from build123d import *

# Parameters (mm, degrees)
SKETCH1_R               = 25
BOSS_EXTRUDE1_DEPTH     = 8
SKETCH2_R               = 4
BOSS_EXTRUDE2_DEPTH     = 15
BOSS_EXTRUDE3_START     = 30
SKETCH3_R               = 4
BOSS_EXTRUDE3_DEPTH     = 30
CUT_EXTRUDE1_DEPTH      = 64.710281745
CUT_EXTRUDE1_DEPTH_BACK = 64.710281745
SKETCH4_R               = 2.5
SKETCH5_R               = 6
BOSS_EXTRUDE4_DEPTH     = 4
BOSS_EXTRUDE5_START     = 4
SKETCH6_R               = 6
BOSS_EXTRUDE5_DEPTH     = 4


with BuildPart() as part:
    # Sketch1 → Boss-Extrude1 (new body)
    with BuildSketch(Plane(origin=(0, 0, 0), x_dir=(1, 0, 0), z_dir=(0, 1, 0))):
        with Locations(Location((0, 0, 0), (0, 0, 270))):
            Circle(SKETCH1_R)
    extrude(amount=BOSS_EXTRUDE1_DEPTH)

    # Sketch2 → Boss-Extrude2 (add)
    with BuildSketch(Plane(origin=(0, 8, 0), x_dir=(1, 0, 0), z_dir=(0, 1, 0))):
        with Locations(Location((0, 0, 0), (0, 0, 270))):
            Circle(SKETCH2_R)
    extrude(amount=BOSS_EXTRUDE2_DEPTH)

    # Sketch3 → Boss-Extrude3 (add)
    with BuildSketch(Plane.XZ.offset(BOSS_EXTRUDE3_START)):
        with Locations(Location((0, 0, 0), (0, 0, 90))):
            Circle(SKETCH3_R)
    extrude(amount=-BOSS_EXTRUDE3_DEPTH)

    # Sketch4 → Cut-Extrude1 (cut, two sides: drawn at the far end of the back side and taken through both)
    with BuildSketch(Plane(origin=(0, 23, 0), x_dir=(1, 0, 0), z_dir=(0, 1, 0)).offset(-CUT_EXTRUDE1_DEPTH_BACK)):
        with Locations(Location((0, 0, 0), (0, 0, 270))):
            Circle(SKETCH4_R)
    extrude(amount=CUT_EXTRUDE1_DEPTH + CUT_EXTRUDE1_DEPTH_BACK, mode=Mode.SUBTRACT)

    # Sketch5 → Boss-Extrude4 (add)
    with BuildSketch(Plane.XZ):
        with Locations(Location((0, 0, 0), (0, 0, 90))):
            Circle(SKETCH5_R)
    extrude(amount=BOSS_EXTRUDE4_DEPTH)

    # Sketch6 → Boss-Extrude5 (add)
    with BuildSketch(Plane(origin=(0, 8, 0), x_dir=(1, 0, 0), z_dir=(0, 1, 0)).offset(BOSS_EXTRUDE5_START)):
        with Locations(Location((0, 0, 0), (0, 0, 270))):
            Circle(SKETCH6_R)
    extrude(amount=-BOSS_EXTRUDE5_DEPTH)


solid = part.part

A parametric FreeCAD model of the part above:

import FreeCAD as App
import Part
import Sketcher
Q = App.Units.Quantity

doc = App.newDocument("Part")
body = doc.addObject("PartDesign::Body", "Body")

# Sketch on XZ plane
sketch1 = body.newObject("Sketcher::SketchObject", "Sketch")
sketch1.AttachmentSupport = (doc.getObject("XZ_Plane"), [""])
sketch1.MapMode = "FlatFace"
sketch1.addGeometry(Part.Circle(App.Vector(0, 0, 0), App.Vector(0, 0, 1), 25), False)
sketch1.addConstraint([
    Sketcher.Constraint("Coincident", 0, 3, -1, 1),
    Sketcher.Constraint("Diameter", 0, Q("50 mm")),
])
pad1 = body.newObject("PartDesign::Pad", "Pad")
pad1.Profile = sketch1
pad1.Length = 8
pad1.Reversed = True

# Sketch on XZ plane
sketch2 = body.newObject("Sketcher::SketchObject", "Sketch001")
sketch2.AttachmentSupport = (doc.getObject("XZ_Plane"), [""])
sketch2.MapMode = "FlatFace"
sketch2.AttachmentOffset = App.Placement(App.Vector(0, 0, -8), App.Rotation())
sketch2.addGeometry(Part.Circle(App.Vector(0, 0, 0), App.Vector(0, 0, 1), 4), False)
sketch2.addConstraint([
    Sketcher.Constraint("Coincident", 0, 3, -1, 1),
    Sketcher.Constraint("Diameter", 0, Q("8 mm")),
])
pad2 = body.newObject("PartDesign::Pad", "Pad001")
pad2.Profile = sketch2
pad2.Length = 15
pad2.Reversed = True

# Sketch on XZ plane
sketch3 = body.newObject("Sketcher::SketchObject", "Sketch002")
sketch3.AttachmentSupport = (doc.getObject("XZ_Plane"), [""])
sketch3.MapMode = "FlatFace"
sketch3.AttachmentOffset = App.Placement(App.Vector(0, 0, 30), App.Rotation())
sketch3.addGeometry(Part.Circle(App.Vector(0, 0, 0), App.Vector(0, 0, 1), 4), False)
sketch3.addConstraint([
    Sketcher.Constraint("Coincident", 0, 3, -1, 1),
    Sketcher.Constraint("Diameter", 0, Q("8 mm")),
])
pad3 = body.newObject("PartDesign::Pad", "Pad002")
pad3.Profile = sketch3
pad3.Length = 30
pad3.Reversed = True

# Sketch on XZ plane
sketch4 = body.newObject("Sketcher::SketchObject", "Sketch003")
sketch4.AttachmentSupport = (doc.getObject("XZ_Plane"), [""])
sketch4.MapMode = "FlatFace"
sketch4.AttachmentOffset = App.Placement(App.Vector(0, 0, -23), App.Rotation())
sketch4.addGeometry(Part.Circle(App.Vector(0, 0, 0), App.Vector(0, 0, 1), 2.5), False)
sketch4.addConstraint([
    Sketcher.Constraint("Coincident", 0, 3, -1, 1),
    Sketcher.Constraint("Diameter", 0, Q("5 mm")),
])
pocket1 = body.newObject("PartDesign::Pocket", "Pocket")
pocket1.Profile = sketch4
pocket1.Type = "ThroughAll"
pocket1.Midplane = True

# Sketch on XZ plane
sketch5 = body.newObject("Sketcher::SketchObject", "Sketch004")
sketch5.AttachmentSupport = (doc.getObject("XZ_Plane"), [""])
sketch5.MapMode = "FlatFace"
sketch5.addGeometry(Part.Circle(App.Vector(0, 0, 0), App.Vector(0, 0, 1), 6), False)
sketch5.addConstraint([
    Sketcher.Constraint("Coincident", 0, 3, -1, 1),
    Sketcher.Constraint("Diameter", 0, Q("12 mm")),
])
pad4 = body.newObject("PartDesign::Pad", "Pad003")
pad4.Profile = sketch5
pad4.Length = 4

# Sketch on XZ plane
sketch6 = body.newObject("Sketcher::SketchObject", "Sketch005")
sketch6.AttachmentSupport = (doc.getObject("XZ_Plane"), [""])
sketch6.MapMode = "FlatFace"
sketch6.AttachmentOffset = App.Placement(App.Vector(0, 0, -12), App.Rotation())
sketch6.addGeometry(Part.Circle(App.Vector(0, 0, 0), App.Vector(0, 0, 1), 6), False)
sketch6.addConstraint([
    Sketcher.Constraint("Coincident", 0, 3, -1, 1),
    Sketcher.Constraint("Diameter", 0, Q("12 mm")),
])
pad5 = body.newObject("PartDesign::Pad", "Pad004")
pad5.Profile = sketch6
pad5.Length = 4

doc.recompute()
